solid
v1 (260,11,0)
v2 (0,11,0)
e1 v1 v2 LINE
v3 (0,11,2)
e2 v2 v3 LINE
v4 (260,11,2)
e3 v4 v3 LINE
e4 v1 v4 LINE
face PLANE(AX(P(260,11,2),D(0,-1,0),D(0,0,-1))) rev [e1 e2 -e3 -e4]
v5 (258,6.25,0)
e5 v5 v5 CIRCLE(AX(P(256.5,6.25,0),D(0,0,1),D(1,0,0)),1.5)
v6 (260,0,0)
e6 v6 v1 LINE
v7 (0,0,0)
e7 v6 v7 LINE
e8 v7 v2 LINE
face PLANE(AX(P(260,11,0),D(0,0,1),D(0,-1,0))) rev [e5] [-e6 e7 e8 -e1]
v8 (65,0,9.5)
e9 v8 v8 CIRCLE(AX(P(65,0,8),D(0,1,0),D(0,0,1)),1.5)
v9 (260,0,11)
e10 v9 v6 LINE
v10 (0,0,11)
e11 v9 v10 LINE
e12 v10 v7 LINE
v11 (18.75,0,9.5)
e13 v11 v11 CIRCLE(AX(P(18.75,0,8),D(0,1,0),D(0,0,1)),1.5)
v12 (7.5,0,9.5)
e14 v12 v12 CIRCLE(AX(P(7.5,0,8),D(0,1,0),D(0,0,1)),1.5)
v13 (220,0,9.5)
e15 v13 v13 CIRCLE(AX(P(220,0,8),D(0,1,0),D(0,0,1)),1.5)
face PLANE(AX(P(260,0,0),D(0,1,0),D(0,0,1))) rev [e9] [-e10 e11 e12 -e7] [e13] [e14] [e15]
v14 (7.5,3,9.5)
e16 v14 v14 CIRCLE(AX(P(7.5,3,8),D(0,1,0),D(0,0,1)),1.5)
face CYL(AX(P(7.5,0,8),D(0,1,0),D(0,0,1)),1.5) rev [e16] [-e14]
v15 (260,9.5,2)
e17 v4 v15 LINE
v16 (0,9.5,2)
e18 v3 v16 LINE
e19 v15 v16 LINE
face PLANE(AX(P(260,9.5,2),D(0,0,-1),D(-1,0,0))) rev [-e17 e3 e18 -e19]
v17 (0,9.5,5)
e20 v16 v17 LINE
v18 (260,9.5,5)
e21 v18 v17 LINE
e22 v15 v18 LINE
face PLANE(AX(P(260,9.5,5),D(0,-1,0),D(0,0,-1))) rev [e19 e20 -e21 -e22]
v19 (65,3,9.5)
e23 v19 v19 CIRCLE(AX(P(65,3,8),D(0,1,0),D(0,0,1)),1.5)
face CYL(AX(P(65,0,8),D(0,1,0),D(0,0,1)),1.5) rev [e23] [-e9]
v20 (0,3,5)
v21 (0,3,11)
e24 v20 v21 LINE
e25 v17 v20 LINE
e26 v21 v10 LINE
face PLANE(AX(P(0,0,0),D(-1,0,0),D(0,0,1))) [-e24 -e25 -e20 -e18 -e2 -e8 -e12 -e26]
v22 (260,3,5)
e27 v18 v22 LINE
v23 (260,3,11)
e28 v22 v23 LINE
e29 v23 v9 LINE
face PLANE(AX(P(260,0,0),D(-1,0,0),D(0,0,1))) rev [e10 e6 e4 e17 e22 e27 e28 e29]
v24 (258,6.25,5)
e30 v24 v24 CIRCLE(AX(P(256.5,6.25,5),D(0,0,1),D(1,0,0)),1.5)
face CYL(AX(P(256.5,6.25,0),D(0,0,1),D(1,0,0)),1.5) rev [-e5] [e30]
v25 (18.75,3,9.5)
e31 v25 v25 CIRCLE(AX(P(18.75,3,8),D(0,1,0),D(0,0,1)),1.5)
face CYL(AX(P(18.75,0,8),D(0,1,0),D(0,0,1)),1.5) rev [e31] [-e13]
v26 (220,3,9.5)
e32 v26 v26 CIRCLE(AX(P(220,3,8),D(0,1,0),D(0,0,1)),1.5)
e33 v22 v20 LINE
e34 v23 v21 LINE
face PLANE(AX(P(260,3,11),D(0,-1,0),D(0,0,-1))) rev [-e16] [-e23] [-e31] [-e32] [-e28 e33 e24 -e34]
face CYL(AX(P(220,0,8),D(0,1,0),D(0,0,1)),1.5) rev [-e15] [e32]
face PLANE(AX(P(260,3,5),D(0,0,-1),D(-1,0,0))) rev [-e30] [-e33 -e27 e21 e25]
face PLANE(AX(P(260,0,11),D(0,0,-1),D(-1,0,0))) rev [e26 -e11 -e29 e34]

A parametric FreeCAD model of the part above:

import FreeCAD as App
import Part
import Sketcher

V = App.Vector

doc = App.newDocument("Part")
params = doc.addObject("Spreadsheet::Sheet", "Params")
for row, (alias, value) in enumerate([
    ("sketch1_width", "11 mm"),
    ("sketch1_width2", "3 mm"),
    ("sketch1_height", "2 mm"),
    ("sketch1_width3", "1.5 mm"),
    ("pad1_length", "260 mm"),
    ("sketch2_diameter", "3 mm"),
    ("sketch3_diameter", "3 mm"),
    ("sketch4_diameter", "3 mm"),
], start=1):
    params.set(f"A{row}", alias)
    params.set(f"B{row}", "=" + value)
    params.setAlias(f"B{row}", alias)

body = doc.addObject("PartDesign::Body", "Body")

sketch1 = body.newObject("Sketcher::SketchObject", "Sketch")
sketch1.AttachmentSupport = (doc.getObject("YZ_Plane"), [""])
sketch1.MapMode = "FlatFace"
sketch1.addGeometry(Part.LineSegment(V(0, 11, 0), V(0, 0, 0)), False)
sketch1.addGeometry(Part.LineSegment(V(0, 0, 0), V(11, 0, 0)), False)
sketch1.addGeometry(Part.LineSegment(V(11, 0, 0), V(11, 2, 0)), False)
sketch1.addGeometry(Part.LineSegment(V(11, 2, 0), V(9.5, 2, 0)), False)
sketch1.addGeometry(Part.LineSegment(V(9.5, 2, 0), V(9.5, 5, 0)), False)
sketch1.addGeometry(Part.LineSegment(V(9.5, 5, 0), V(3, 5, 0)), False)
sketch1.addGeometry(Part.LineSegment(V(3, 5, 0), V(3, 11, 0)), False)
sketch1.addGeometry(Part.LineSegment(V(3, 11, 0), V(0, 11, 0)), False)
sketch1.addConstraint(Sketcher.Constraint("Coincident", 0, 2, 1, 1))
sketch1.addConstraint(Sketcher.Constraint("Coincident", 1, 2, 2, 1))
sketch1.addConstraint(Sketcher.Constraint("Coincident", 2, 2, 3, 1))
sketch1.addConstraint(Sketcher.Constraint("Coincident", 3, 2, 4, 1))
sketch1.addConstraint(Sketcher.Constraint("Coincident", 4, 2, 5, 1))
sketch1.addConstraint(Sketcher.Constraint("Coincident", 5, 2, 6, 1))
sketch1.addConstraint(Sketcher.Constraint("Coincident", 6, 2, 7, 1))
sketch1.addConstraint(Sketcher.Constraint("Coincident", 7, 2, 0, 1))
sketch1.addConstraint(Sketcher.Constraint("Vertical", 0))
sketch1.addConstraint(Sketcher.Constraint("Horizontal", 1))
sketch1.addConstraint(Sketcher.Constraint("Vertical", 2))
sketch1.addConstraint(Sketcher.Constraint("Horizontal", 3))
sketch1.addConstraint(Sketcher.Constraint("Vertical", 4))
sketch1.addConstraint(Sketcher.Constraint("Horizontal", 5))
sketch1.addConstraint(Sketcher.Constraint("Vertical", 6))
sketch1.addConstraint(Sketcher.Constraint("Horizontal", 7))
sketch1.addConstraint(Sketcher.Constraint("Coincident", 0, 2, -1, 1))
sketch1.addConstraint(Sketcher.Constraint("Equal", 1, 0))
sketch1.addConstraint(Sketcher.Constraint("Equal", 7, 4))
sketch1.addConstraint(Sketcher.Constraint("DistanceX", 1, 1, 1, 2, 11.0))
sketch1.addConstraint(Sketcher.Constraint("DistanceX", 7, 2, 7, 1, 3.0))
sketch1.addConstraint(Sketcher.Constraint("DistanceY", 2, 1, 2, 2, 2.0))
sketch1.addConstraint(Sketcher.Constraint("DistanceX", 3, 2, 3, 1, 1.5))
sketch1.setExpression("Constraints[19]", "Params.sketch1_width")
sketch1.setExpression("Constraints[20]", "Params.sketch1_width2")
sketch1.setExpression("Constraints[21]", "Params.sketch1_height")
sketch1.setExpression("Constraints[22]", "Params.sketch1_width3")
pad1 = body.newObject("PartDesign::Pad", "Pad")
pad1.Profile = sketch1
pad1.setExpression("Length", "Params.pad1_length")

sketch2 = body.newObject("Sketcher::SketchObject", "Sketch001")
sketch2.AttachmentSupport = (doc.getObject("XY_Plane"), [""])
sketch2.MapMode = "FlatFace"
sketch2.AttachmentOffset = App.Placement(V(0, 0, 5), App.Rotation())
sketch2.addGeometry(Part.Circle(V(256.5, 6.2, 0), V(0, 0, 1), 1.5), False)
sketch2.addConstraint(Sketcher.Constraint("Diameter", 0, 3.0))
sketch2.addConstraint(Sketcher.Constraint("DistanceX", -1, 1, 0, 3, 256.5))
sketch2.addConstraint(Sketcher.Constraint("DistanceY", -1, 1, 0, 3, 6.25))
sketch2.setExpression("Constraints[0]", "Params.sketch2_diameter")
pocket1 = body.newObject("PartDesign::Pocket", "Pocket")
pocket1.Profile = sketch2
pocket1.Type = "ThroughAll"

sketch3 = body.newObject("Sketcher::SketchObject", "Sketch002")
sketch3.AttachmentSupport = (doc.getObject("XZ_Plane"), [""])
sketch3.MapMode = "FlatFace"
sketch3.AttachmentOffset = App.Placement(V(0, 0, -3), App.Rotation())
sketch3.addGeometry(Part.Circle(V(7.5, 8, 0), V(0, 0, 1), 1.5), False)
sketch3.addGeometry(Part.Circle(V(18.8, 8, 0), V(0, 0, 1), 1.5), False)
sketch3.addConstraint(Sketcher.Constraint("Equal", 0, 1))
sketch3.addConstraint(Sketcher.Constraint("Horizontal", 0, 3, 1, 3))
sketch3.addConstraint(Sketcher.Constraint("Diameter", 0, 3.0))
sketch3.addConstraint(Sketcher.Constraint("DistanceY", -1, 1, 0, 3, 8.0))
sketch3.addConstraint(Sketcher.Constraint("DistanceX", -1, 1, 0, 3, 7.5))
sketch3.addConstraint(Sketcher.Constraint("DistanceX", -1, 1, 1, 3, 18.75))
sketch3.setExpression("Constraints[2]", "Params.sketch3_diameter")
pocket2 = body.newObject("PartDesign::Pocket", "Pocket001")
pocket2.Profile = sketch3
pocket2.Type = "ThroughAll"
pocket2.Reversed = True

sketch4 = body.newObject("Sketcher::SketchObject", "Sketch003")
sketch4.AttachmentSupport = (doc.getObject("XZ_Plane"), [""])
sketch4.MapMode = "FlatFace"
sketch4.AttachmentOffset = App.Placement(V(0, 0, -3), App.Rotation())
sketch4.addGeometry(Part.Circle(V(65, 8, 0), V(0, 0, 1), 1.5), False)
sketch4.addGeometry(Part.Circle(V(220, 8, 0), V(0, 0, 1), 1.5), False)
sketch4.addConstraint(Sketcher.Constraint("Equal", 0, 1))
sketch4.addConstraint(Sketcher.Constraint("Horizontal", 0, 3, 1, 3))
sketch4.addConstraint(Sketcher.Constraint("Diameter", 0, 3.0))
sketch4.addConstraint(Sketcher.Constraint("DistanceX", -1, 1, 0, 3, 65.0))
sketch4.addConstraint(Sketcher.Constraint("DistanceY", -1, 1, 0, 3, 8.0))
sketch4.addConstraint(Sketcher.Constraint("DistanceX", -1, 1, 1, 3, 220.0))
sketch4.setExpression("Constraints[2]", "Params.sketch4_diameter")
pocket3 = body.newObject("PartDesign::Pocket", "Pocket002")
pocket3.Profile = sketch4
pocket3.Type = "ThroughAll"
pocket3.Reversed = True

doc.recompute()
